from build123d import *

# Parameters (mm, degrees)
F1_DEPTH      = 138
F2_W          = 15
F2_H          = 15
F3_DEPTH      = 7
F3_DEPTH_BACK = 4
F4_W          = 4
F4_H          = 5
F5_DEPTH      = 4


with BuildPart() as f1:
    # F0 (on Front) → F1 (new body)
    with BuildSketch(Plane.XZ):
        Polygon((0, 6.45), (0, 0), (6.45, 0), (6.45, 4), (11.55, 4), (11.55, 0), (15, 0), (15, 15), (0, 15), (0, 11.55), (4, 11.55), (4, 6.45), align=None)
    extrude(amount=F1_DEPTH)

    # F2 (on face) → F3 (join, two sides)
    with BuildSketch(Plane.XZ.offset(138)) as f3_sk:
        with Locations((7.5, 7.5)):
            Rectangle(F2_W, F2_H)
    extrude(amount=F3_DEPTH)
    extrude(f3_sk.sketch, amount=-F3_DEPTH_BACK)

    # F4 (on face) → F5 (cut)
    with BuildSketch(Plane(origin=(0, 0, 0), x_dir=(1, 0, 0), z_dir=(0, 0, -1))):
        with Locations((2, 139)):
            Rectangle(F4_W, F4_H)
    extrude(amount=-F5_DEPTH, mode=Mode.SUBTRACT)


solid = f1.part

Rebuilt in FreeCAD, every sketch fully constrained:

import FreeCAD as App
import Part
import Sketcher


def add_polygon(sketch, points):
    """Adds a closed chain of lines whose ends are joined by coincident constraints."""
    first, n = sketch.GeometryCount, len(points)
    for a, b in zip(points, points[1:] + points[:1]):
        sketch.addGeometry(Part.LineSegment(App.Vector(*a, 0), App.Vector(*b, 0)), False)
    for i in range(n):
        sketch.addConstraint(Sketcher.Constraint("Coincident", first + i, 2, first + (i + 1) % n, 1))

doc = App.newDocument("Part")
params = doc.addObject("Spreadsheet::Sheet", "Params")
for row, (alias, value) in enumerate([
    ("sketch1_width", "15 mm"),
    ("sketch1_width2", "4 mm"),
    ("sketch1_width3", "5.1 mm"),
    ("sketch1_width4", "6.45 mm"),
    ("pad1_length", "138 mm"),
    ("sketch2_width", "15 mm"),
    ("pad2_length", "7 mm"),
    ("pad2_length2", "4 mm"),
    ("sketch3_width", "4 mm"),
    ("sketch3_height", "5 mm"),
    ("pocket1_length", "4 mm"),
], start=1):
    params.set(f"A{row}", alias)
    params.set(f"B{row}", "=" + value)
    params.setAlias(f"B{row}", alias)

body = doc.addObject("PartDesign::Body", "Body")

# Sketch on XZ plane
sketch1 = body.newObject("Sketcher::SketchObject", "Sketch")
sketch1.AttachmentSupport = (doc.getObject("XZ_Plane"), [""])
sketch1.MapMode = "FlatFace"
add_polygon(sketch1, [(0, 6.5), (0, 0), (6.5, 0), (6.5, 4), (11.6, 4), (11.6, 0), (15, 0), (15, 15), (0, 15), (0, 11.6), (4, 11.6), (4, 6.5)])  # lines 0-11
sketch1.addConstraint(Sketcher.Constraint("Vertical", 0))
sketch1.addConstraint(Sketcher.Constraint("Horizontal", 1))
sketch1.addConstraint(Sketcher.Constraint("Vertical", 2))
sketch1.addConstraint(Sketcher.Constraint("Horizontal", 3))
sketch1.addConstraint(Sketcher.Constraint("Vertical", 4))
sketch1.addConstraint(Sketcher.Constraint("Horizontal", 5))
sketch1.addConstraint(Sketcher.Constraint("Vertical", 6))
sketch1.addConstraint(Sketcher.Constraint("Horizontal", 7))
sketch1.addConstraint(Sketcher.Constraint("Vertical", 8))
sketch1.addConstraint(Sketcher.Constraint("Horizontal", 9))
sketch1.addConstraint(Sketcher.Constraint("Vertical", 10))
sketch1.addConstraint(Sketcher.Constraint("Horizontal", 11))
sketch1.addConstraint(Sketcher.Constraint("Coincident", 0, 2, -1, 1))
sketch1.addConstraint(Sketcher.Constraint("PointOnObject", 4, 2, -1))
sketch1.addConstraint(Sketcher.Constraint("PointOnObject", 7, 2, -2))
sketch1.addConstraint(Sketcher.Constraint("Equal", 1, 0))
sketch1.addConstraint(Sketcher.Constraint("Equal", 11, 2))
sketch1.addConstraint(Sketcher.Constraint("Equal", 7, 6))
sketch1.addConstraint(Sketcher.Constraint("Equal", 5, 8))
sketch1.addConstraint(Sketcher.Constraint("DistanceX", 7, 2, 7, 1, 15.0))
sketch1.addConstraint(Sketcher.Constraint("DistanceX", 9, 1, 9, 2, 4.0))
sketch1.addConstraint(Sketcher.Constraint("DistanceX", 3, 1, 3, 2, 5.1))
sketch1.addConstraint(Sketcher.Constraint("DistanceX", 1, 1, 1, 2, 6.45))
sketch1.setExpression("Constraints[31]", "Params.sketch1_width")
sketch1.setExpression("Constraints[32]", "Params.sketch1_width2")
sketch1.setExpression("Constraints[33]", "Params.sketch1_width3")
sketch1.setExpression("Constraints[34]", "Params.sketch1_width4")
pad1 = body.newObject("PartDesign::Pad", "Pad")
pad1.Profile = sketch1
pad1.setExpression("Length", "Params.pad1_length")

# Sketch on XZ plane
sketch2 = body.newObject("Sketcher::SketchObject", "Sketch001")
sketch2.AttachmentSupport = (doc.getObject("XZ_Plane"), [""])
sketch2.MapMode = "FlatFace"
sketch2.AttachmentOffset = App.Placement(App.Vector(0, 0, 138), App.Rotation())
add_polygon(sketch2, [(0, 15), (0, 0), (15, 0), (15, 15)])  # lines 0-3
sketch2.addConstraint(Sketcher.Constraint("Vertical", 0))
sketch2.addConstraint(Sketcher.Constraint("Horizontal", 1))
sketch2.addConstraint(Sketcher.Constraint("Vertical", 2))
sketch2.addConstraint(Sketcher.Constraint("Horizontal", 3))
sketch2.addConstraint(Sketcher.Constraint("Coincident", 0, 2, -1, 1))
sketch2.addConstraint(Sketcher.Constraint("Equal", 3, 0))
sketch2.addConstraint(Sketcher.Constraint("DistanceX", 1, 1, 1, 2, 15.0))
sketch2.setExpression("Constraints[10]", "Params.sketch2_width")
pad2 = body.newObject("PartDesign::Pad", "Pad001")
pad2.Profile = sketch2
pad2.Type = "TwoLengths"
pad2.setExpression("Length", "Params.pad2_length")
pad2.setExpression("Length2", "Params.pad2_length2")

# Sketch on XY plane
sketch3 = body.newObject("Sketcher::SketchObject", "Sketch002")
sketch3.AttachmentSupport = (doc.getObject("XY_Plane"), [""])
sketch3.MapMode = "FlatFace"
add_polygon(sketch3, [(0, -141.5), (0, -136.5), (4, -136.5), (4, -141.5)])  # lines 0-3
sketch3.addConstraint(Sketcher.Constraint("Vertical", 0))
sketch3.addConstraint(Sketcher.Constraint("Horizontal", 1))
sketch3.addConstraint(Sketcher.Constraint("Vertical", 2))
sketch3.addConstraint(Sketcher.Constraint("Horizontal", 3))
sketch3.addConstraint(Sketcher.Constraint("PointOnObject", 0, 2, -2))
sketch3.addConstraint(Sketcher.Constraint("DistanceX", 1, 1, 1, 2, 4.0))
sketch3.addConstraint(Sketcher.Constraint("DistanceY", 0, 1, 0, 2, 5.0))
sketch3.addConstraint(Sketcher.Constraint("DistanceY", 0, 2, -1, 1, 136.5))
sketch3.setExpression("Constraints[9]", "Params.sketch3_width")
sketch3.setExpression("Constraints[10]", "Params.sketch3_height")
pocket1 = body.newObject("PartDesign::Pocket", "Pocket")
pocket1.Profile = sketch3
pocket1.setExpression("Length", "Params.pocket1_length")
pocket1.Reversed = True

doc.recompute()
